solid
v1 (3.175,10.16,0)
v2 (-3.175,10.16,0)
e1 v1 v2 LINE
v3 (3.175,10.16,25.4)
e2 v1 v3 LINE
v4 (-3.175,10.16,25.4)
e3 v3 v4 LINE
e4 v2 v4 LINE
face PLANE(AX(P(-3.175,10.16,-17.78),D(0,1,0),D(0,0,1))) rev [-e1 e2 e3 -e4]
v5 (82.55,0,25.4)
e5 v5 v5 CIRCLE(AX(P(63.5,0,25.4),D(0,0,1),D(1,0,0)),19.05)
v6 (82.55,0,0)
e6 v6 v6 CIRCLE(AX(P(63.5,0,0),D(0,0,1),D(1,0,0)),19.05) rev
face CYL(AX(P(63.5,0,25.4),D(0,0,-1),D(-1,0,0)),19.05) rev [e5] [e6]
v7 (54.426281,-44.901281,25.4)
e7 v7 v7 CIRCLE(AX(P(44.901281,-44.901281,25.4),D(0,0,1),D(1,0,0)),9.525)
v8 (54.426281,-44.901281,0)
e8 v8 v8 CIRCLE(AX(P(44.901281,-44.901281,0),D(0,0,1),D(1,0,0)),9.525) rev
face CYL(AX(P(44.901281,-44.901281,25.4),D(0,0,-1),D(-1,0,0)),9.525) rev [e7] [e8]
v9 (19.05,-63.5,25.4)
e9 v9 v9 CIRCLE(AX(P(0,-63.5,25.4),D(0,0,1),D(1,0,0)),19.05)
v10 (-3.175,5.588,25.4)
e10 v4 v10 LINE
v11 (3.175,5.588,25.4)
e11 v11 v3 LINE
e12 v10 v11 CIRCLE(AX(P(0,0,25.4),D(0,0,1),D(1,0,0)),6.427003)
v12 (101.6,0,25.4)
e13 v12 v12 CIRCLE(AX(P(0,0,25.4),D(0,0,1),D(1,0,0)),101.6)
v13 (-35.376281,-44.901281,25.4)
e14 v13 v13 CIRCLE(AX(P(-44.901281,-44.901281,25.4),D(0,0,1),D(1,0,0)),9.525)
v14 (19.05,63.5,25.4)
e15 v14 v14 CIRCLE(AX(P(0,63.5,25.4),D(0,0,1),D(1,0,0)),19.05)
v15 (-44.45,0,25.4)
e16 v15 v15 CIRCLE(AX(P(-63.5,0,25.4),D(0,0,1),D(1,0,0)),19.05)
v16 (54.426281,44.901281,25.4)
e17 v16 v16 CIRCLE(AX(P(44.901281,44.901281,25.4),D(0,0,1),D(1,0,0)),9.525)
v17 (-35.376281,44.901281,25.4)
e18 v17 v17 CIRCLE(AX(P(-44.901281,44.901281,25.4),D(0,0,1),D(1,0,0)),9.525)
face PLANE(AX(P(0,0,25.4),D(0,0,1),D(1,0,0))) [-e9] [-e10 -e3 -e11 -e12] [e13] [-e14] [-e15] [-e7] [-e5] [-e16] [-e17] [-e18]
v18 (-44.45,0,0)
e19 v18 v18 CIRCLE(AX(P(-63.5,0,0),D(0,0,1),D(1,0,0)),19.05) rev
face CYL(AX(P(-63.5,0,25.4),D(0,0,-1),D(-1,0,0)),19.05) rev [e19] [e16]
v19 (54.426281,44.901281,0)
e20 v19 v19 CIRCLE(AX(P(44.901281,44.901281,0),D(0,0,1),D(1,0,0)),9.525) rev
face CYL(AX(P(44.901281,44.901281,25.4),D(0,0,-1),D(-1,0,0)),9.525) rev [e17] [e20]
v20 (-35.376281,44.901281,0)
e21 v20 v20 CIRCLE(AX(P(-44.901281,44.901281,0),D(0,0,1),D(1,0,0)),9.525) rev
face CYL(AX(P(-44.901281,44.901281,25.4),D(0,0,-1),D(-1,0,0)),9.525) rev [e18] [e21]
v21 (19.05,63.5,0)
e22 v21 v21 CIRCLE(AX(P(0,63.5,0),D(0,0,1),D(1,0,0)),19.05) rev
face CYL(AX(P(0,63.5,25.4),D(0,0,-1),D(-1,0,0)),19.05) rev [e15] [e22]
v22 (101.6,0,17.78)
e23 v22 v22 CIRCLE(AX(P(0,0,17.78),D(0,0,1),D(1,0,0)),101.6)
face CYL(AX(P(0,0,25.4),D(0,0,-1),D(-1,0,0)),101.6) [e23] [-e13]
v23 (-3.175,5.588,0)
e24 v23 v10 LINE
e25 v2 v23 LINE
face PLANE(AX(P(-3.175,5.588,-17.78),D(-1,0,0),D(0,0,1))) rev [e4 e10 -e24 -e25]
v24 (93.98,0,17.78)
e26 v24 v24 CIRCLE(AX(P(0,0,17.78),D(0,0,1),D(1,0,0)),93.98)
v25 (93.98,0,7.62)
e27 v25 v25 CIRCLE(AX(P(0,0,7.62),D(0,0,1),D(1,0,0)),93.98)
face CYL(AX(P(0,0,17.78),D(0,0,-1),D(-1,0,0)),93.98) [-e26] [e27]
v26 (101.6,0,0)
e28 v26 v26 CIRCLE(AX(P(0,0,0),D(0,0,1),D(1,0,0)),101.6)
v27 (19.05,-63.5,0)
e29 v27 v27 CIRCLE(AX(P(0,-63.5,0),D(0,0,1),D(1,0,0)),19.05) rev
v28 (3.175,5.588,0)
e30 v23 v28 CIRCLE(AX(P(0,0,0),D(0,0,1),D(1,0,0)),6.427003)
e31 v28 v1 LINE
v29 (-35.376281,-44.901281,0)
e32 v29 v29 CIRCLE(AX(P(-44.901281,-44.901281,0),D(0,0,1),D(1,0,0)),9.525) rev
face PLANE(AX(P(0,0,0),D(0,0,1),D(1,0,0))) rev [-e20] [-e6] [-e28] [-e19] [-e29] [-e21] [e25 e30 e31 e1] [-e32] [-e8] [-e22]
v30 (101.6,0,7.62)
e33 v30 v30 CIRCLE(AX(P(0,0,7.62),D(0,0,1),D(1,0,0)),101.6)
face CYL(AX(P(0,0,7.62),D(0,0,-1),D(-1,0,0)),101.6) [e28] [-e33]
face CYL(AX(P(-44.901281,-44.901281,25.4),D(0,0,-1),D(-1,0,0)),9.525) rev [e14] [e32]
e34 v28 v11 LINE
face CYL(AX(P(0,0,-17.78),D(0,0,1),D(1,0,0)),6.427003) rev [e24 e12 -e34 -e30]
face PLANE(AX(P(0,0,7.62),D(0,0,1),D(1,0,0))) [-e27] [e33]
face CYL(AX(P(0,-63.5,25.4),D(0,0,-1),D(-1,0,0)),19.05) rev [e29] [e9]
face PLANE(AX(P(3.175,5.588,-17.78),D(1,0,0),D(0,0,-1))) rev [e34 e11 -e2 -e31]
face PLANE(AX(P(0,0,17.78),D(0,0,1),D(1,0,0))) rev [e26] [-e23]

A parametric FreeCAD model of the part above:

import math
import FreeCAD as App
import Part
import Sketcher
Q = App.Units.Quantity

doc = App.newDocument("Part")
body = doc.addObject("PartDesign::Body", "Body")

sketch1 = body.newObject("Sketcher::SketchObject", "Sketch")
sketch1.AttachmentSupport = (doc.getObject("XY_Plane"), [""])
sketch1.MapMode = "FlatFace"
sketch1.addGeometry(Part.Circle(App.Vector(0, 0, 0), App.Vector(0, 0, 1), 102), False)
sketch1.addConstraint(Sketcher.Constraint("Coincident", 0, 3, -1, 1))
sketch1.addConstraint(Sketcher.Constraint("Diameter", 0, Q("8 in")))
pad1 = body.newObject("PartDesign::Pad", "Pad")
pad1.Profile = sketch1
pad1.Length = Q("0.3 in")

sketch2 = body.newObject("Sketcher::SketchObject", "Sketch001")
sketch2.AttachmentSupport = (doc.getObject("XY_Plane"), [""])
sketch2.MapMode = "FlatFace"
sketch2.AttachmentOffset = App.Placement(App.Vector(0, 0, 0.3 * 25.4), App.Rotation())
sketch2.addGeometry(Part.Circle(App.Vector(0, 0, 0), App.Vector(0, 0, 1), 94), False)
sketch2.addConstraint(Sketcher.Constraint("Coincident", 0, 3, -1, 1))
sketch2.addConstraint(Sketcher.Constraint("Diameter", 0, Q("7.4 in")))
pad2 = body.newObject("PartDesign::Pad", "Pad001")
pad2.Profile = sketch2
pad2.Length = Q("0.4 in")

sketch3 = body.newObject("Sketcher::SketchObject", "Sketch002")
sketch3.AttachmentSupport = (doc.getObject("XY_Plane"), [""])
sketch3.MapMode = "FlatFace"
sketch3.AttachmentOffset = App.Placement(App.Vector(0, 0, 0.7 * 25.4), App.Rotation())
sketch3.addGeometry(Part.Circle(App.Vector(0, 0, 0), App.Vector(0, 0, 1), 102), False)
sketch3.addConstraint(Sketcher.Constraint("Coincident", 0, 3, -1, 1))
sketch3.addConstraint(Sketcher.Constraint("Diameter", 0, Q("8 in")))
pad3 = body.newObject("PartDesign::Pad", "Pad002")
pad3.Profile = sketch3
pad3.Length = Q("0.3 in")

sketch4 = body.newObject("Sketcher::SketchObject", "Sketch003")
sketch4.AttachmentSupport = (doc.getObject("XY_Plane"), [""])
sketch4.MapMode = "FlatFace"
sketch4.AttachmentOffset = App.Placement(App.Vector(0, 0, 0.3 * 25.4), App.Rotation())
sketch4.addGeometry(Part.Circle(App.Vector(-64, 0, 0), App.Vector(0, 0, 1), 19), False)
sketch4.addGeometry(Part.Circle(App.Vector(-45, 45, 0), App.Vector(0, 0, 1), 10), False)
sketch4.addGeometry(Part.Circle(App.Vector(0, 64, 0), App.Vector(0, 0, 1), 19), False)
sketch4.addGeometry(Part.Circle(App.Vector(45, 45, 0), App.Vector(0, 0, 1), 10), False)
sketch4.addGeometry(Part.Circle(App.Vector(64, 0, 0), App.Vector(0, 0, 1), 19), False)
sketch4.addGeometry(Part.Circle(App.Vector(45, -45, 0), App.Vector(0, 0, 1), 10), False)
sketch4.addGeometry(Part.Circle(App.Vector(0, -64, 0), App.Vector(0, 0, 1), 19), False)
sketch4.addGeometry(Part.Circle(App.Vector(-45, -45, 0), App.Vector(0, 0, 1), 10), False)
sketch4.addConstraint(Sketcher.Constraint("Equal", 0, 2))
sketch4.addConstraint(Sketcher.Constraint("Equal", 1, 3))
sketch4.addConstraint(Sketcher.Constraint("Equal", 2, 4))
sketch4.addConstraint(Sketcher.Constraint("Equal", 3, 5))
sketch4.addConstraint(Sketcher.Constraint("Equal", 4, 6))
sketch4.addConstraint(Sketcher.Constraint("Equal", 5, 7))
sketch4.addConstraint(Sketcher.Constraint("Symmetric", 0, 3, 4, 3, -1, 1))
sketch4.addConstraint(Sketcher.Constraint("Symmetric", 1, 3, 5, 3, -1, 1))
sketch4.addConstraint(Sketcher.Constraint("Symmetric", 2, 3, 6, 3, -1, 1))
sketch4.addConstraint(Sketcher.Constraint("Symmetric", 3, 3, 7, 3, -1, 1))
sketch4.addConstraint(Sketcher.Constraint("Symmetric", 1, 3, 3, 3, -2))
sketch4.addConstraint(Sketcher.Constraint("PointOnObject", 0, 3, -1))
sketch4.addConstraint(Sketcher.Constraint("PointOnObject", 2, 3, -2))
sketch4.addConstraint(Sketcher.Constraint("Diameter", 0, Q("1.5 in")))
sketch4.addConstraint(Sketcher.Constraint("Diameter", 1, Q("0.75 in")))
sketch4.addConstraint(Sketcher.Constraint("DistanceX", 0, 3, 4, 3, Q("5 in")))
sketch4.addConstraint(Sketcher.Constraint("DistanceY", -1, 1, 2, 3, Q("2.5 in")))
sketch4.addConstraint(Sketcher.Constraint("DistanceX", 1, 3, -1, 1, Q("44.901281 mm")))
sketch4.addConstraint(Sketcher.Constraint("DistanceY", -1, 1, 1, 3, Q("44.901281 mm")))
pocket1 = body.newObject("PartDesign::Pocket", "Pocket")
pocket1.Profile = sketch4
pocket1.Type = "ThroughAll"
pocket1.Midplane = True

sketch5 = body.newObject("Sketcher::SketchObject", "Sketch004")
sketch5.AttachmentSupport = (doc.getObject("XY_Plane"), [""])
sketch5.MapMode = "FlatFace"
sketch5.AttachmentOffset = App.Placement(App.Vector(0, 0, 0.3 * 25.4), App.Rotation())
sketch5.addGeometry(Part.LineSegment(App.Vector(-3.2, 10.2, 0), App.Vector(-3.2, 5.6, 0)), False)
sketch5.addGeometry(Part.ArcOfCircle(Part.Circle(App.Vector(0, 0, 0), App.Vector(0, 0, 1), 6.4), math.radians(120), math.radians(420)), False)
sketch5.addGeometry(Part.LineSegment(App.Vector(3.2, 5.6, 0), App.Vector(3.2, 10.2, 0)), False)
sketch5.addGeometry(Part.LineSegment(App.Vector(3.2, 10.2, 0), App.Vector(-3.2, 10.2, 0)), False)
sketch5.addConstraint(Sketcher.Constraint("Coincident", 0, 2, 1, 1))
sketch5.addConstraint(Sketcher.Constraint("Coincident", 1, 2, 2, 1))
sketch5.addConstraint(Sketcher.Constraint("Coincident", 2, 2, 3, 1))
sketch5.addConstraint(Sketcher.Constraint("Coincident", 3, 2, 0, 1))
sketch5.addConstraint(Sketcher.Constraint("Vertical", 0))
sketch5.addConstraint(Sketcher.Constraint("Vertical", 2))
sketch5.addConstraint(Sketcher.Constraint("Horizontal", 3))
sketch5.addConstraint(Sketcher.Constraint("Coincident", 1, 3, -1, 1))
sketch5.addConstraint(Sketcher.Constraint("Horizontal", 0, 2, 1, 2))
sketch5.addConstraint(Sketcher.Constraint("DistanceX", 3, 2, 3, 1, Q("0.25 in")))
sketch5.addConstraint(Sketcher.Constraint("DistanceY", 0, 2, 0, 1, Q("0.18 in")))
sketch5.addConstraint(Sketcher.Constraint("DistanceY", -1, 1, 2, 2, Q("0.4 in")))
pocket2 = body.newObject("PartDesign::Pocket", "Pocket001")
pocket2.Profile = sketch5
pocket2.Length = Q("1 in")

sketch6 = body.newObject("Sketcher::SketchObject", "Sketch005")
sketch6.AttachmentSupport = (doc.getObject("XY_Plane"), [""])
sketch6.MapMode = "FlatFace"
sketch6.AttachmentOffset = App.Placement(App.Vector(0, 0, 0.3 * 25.4), App.Rotation())
sketch6.addGeometry(Part.LineSegment(App.Vector(-3.2, 10.2, 0), App.Vector(-3.2, 5.6, 0)), False)
sketch6.addGeometry(Part.ArcOfCircle(Part.Circle(App.Vector(0, 0, 0), App.Vector(0, 0, 1), 6.4), math.radians(120), math.radians(420)), False)
sketch6.addGeometry(Part.LineSegment(App.Vector(3.2, 5.6, 0), App.Vector(3.2, 10.2, 0)), False)
sketch6.addGeometry(Part.LineSegment(App.Vector(3.2, 10.2, 0), App.Vector(-3.2, 10.2, 0)), False)
sketch6.addConstraint(Sketcher.Constraint("Coincident", 0, 2, 1, 1))
sketch6.addConstraint(Sketcher.Constraint("Coincident", 1, 2, 2, 1))
sketch6.addConstraint(Sketcher.Constraint("Coincident", 2, 2, 3, 1))
sketch6.addConstraint(Sketcher.Constraint("Coincident", 3, 2, 0, 1))
sketch6.addConstraint(Sketcher.Constraint("Vertical", 0))
sketch6.addConstraint(Sketcher.Constraint("Vertical", 2))
sketch6.addConstraint(Sketcher.Constraint("Horizontal", 3))
sketch6.addConstraint(Sketcher.Constraint("Coincident", 1, 3, -1, 1))
sketch6.addConstraint(Sketcher.Constraint("Horizontal", 0, 2, 1, 2))
sketch6.addConstraint(Sketcher.Constraint("DistanceX", 3, 2, 3, 1, Q("0.25 in")))
sketch6.addConstraint(Sketcher.Constraint("DistanceY", 0, 2, 0, 1, Q("0.18 in")))
sketch6.addConstraint(Sketcher.Constraint("DistanceY", -1, 1, 2, 2, Q("0.4 in")))
pocket3 = body.newObject("PartDesign::Pocket", "Pocket002")
pocket3.Profile = sketch6
pocket3.Type = "ThroughAll"
pocket3.Midplane = True

doc.recompute()
